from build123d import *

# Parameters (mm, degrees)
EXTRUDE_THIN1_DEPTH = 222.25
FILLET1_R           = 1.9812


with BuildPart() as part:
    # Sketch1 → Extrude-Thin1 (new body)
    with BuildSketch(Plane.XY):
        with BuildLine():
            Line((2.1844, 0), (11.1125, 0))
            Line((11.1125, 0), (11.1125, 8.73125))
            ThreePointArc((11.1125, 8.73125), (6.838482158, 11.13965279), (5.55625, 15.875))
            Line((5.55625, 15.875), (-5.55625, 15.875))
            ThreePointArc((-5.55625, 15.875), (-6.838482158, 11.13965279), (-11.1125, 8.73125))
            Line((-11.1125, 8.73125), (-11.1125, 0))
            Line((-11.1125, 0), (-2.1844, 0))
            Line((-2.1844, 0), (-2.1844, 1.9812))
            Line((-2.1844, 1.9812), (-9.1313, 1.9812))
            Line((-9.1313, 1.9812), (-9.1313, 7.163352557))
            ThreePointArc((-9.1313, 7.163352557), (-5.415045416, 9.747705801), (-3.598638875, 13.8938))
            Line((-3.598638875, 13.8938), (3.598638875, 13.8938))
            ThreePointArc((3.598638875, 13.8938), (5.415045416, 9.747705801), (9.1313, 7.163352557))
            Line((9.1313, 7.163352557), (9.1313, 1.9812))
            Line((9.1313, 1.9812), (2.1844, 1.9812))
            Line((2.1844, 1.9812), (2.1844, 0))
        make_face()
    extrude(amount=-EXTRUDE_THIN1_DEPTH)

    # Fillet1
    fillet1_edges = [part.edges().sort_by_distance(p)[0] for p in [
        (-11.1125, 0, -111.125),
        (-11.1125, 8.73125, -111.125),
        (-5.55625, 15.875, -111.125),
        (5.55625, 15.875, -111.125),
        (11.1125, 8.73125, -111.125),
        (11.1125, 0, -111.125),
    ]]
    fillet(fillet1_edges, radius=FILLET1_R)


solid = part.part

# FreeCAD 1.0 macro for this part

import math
import FreeCAD as App
import Part
import Sketcher
Q = App.Units.Quantity


def edges_at(feature, points):
    """Names of the edges that pass closest to the given points."""
    edges = feature.Shape.Edges
    near = lambda p: min(range(len(edges)), key=lambda i: edges[i].distToShape(Part.Vertex(*p))[0])
    return sorted({f"Edge{near(p) + 1}" for p in points})

doc = App.newDocument("Part")
params = doc.addObject("Spreadsheet::Sheet", "Params")
for row, (alias, value) in enumerate([
    ("sketch1_radius", "0.25 in"),
    ("sketch1_radius2", "0.328 in"),
    ("sketch1_width", "0.4375 in"),
    ("sketch1_height", "0.34375 in"),
    ("sketch1_height2", "0.078 in"),
    ("pad1_length", "8.75 in"),
    ("fillet_radius", "0.078 in"),
], start=1):
    params.set(f"A{row}", alias)
    params.set(f"B{row}", "=" + value)
    params.setAlias(f"B{row}", alias)

body = doc.addObject("PartDesign::Body", "Body")

# Sketch on XY plane
sketch1 = body.newObject("Sketcher::SketchObject", "Sketch")
sketch1.AttachmentSupport = (doc.getObject("XY_Plane"), [""])
sketch1.MapMode = "FlatFace"
sketch1.addGeometry(Part.LineSegment(App.Vector(2.1844, 0, 0), App.Vector(11.1125, 0, 0)), False)
sketch1.addGeometry(Part.LineSegment(App.Vector(11.1125, 0, 0), App.Vector(11.1125, 8.73125, 0)), False)
sketch1.addGeometry(Part.ArcOfCircle(Part.Circle(App.Vector(11.850869, 15.038176, 0), App.Vector(0, 0, 1), 6.35), math.radians(172.427342), math.radians(263.322625)), False)
sketch1.addGeometry(Part.LineSegment(App.Vector(5.55625, 15.875, 0), App.Vector(-5.55625, 15.875, 0)), False)
sketch1.addGeometry(Part.ArcOfCircle(Part.Circle(App.Vector(-11.850869, 15.038176, 0), App.Vector(0, 0, 1), 6.35), math.radians(-83.322625), math.radians(7.572658)), False)
sketch1.addGeometry(Part.LineSegment(App.Vector(-11.1125, 8.73125, 0), App.Vector(-11.1125, 0, 0)), False)
sketch1.addGeometry(Part.LineSegment(App.Vector(-11.1125, 0, 0), App.Vector(-2.1844, 0, 0)), False)
sketch1.addGeometry(Part.LineSegment(App.Vector(-2.1844, 0, 0), App.Vector(-2.1844, 1.9812, 0)), False)
sketch1.addGeometry(Part.LineSegment(App.Vector(-2.1844, 1.9812, 0), App.Vector(-9.1313, 1.9812, 0)), False)
sketch1.addGeometry(Part.LineSegment(App.Vector(-9.1313, 1.9812, 0), App.Vector(-9.1313, 7.163353, 0)), False)
sketch1.addGeometry(Part.ArcOfCircle(Part.Circle(App.Vector(-11.850869, 15.038176, 0), App.Vector(0, 0, 1), 8.3312), math.radians(-70.947656), math.radians(-7.895124)), False)
sketch1.addGeometry(Part.LineSegment(App.Vector(-3.598639, 13.8938, 0), App.Vector(3.598639, 13.8938, 0)), False)
sketch1.addGeometry(Part.ArcOfCircle(Part.Circle(App.Vector(11.850869, 15.038176, 0), App.Vector(0, 0, 1), 8.3312), math.radians(-172.104876), math.radians(-109.052344)), False)
sketch1.addGeometry(Part.LineSegment(App.Vector(9.1313, 7.163353, 0), App.Vector(9.1313, 1.9812, 0)), False)
sketch1.addGeometry(Part.LineSegment(App.Vector(9.1313, 1.9812, 0), App.Vector(2.1844, 1.9812, 0)), False)
sketch1.addGeometry(Part.LineSegment(App.Vector(2.1844, 1.9812, 0), App.Vector(2.1844, 0, 0)), False)
sketch1.addConstraint(Sketcher.Constraint("Coincident", 0, 2, 1, 1))
sketch1.addConstraint(Sketcher.Constraint("Coincident", 1, 2, 2, 2))
sketch1.addConstraint(Sketcher.Constraint("Coincident", 2, 1, 3, 1))
sketch1.addConstraint(Sketcher.Constraint("Coincident", 3, 2, 4, 2))
sketch1.addConstraint(Sketcher.Constraint("Coincident", 4, 1, 5, 1))
sketch1.addConstraint(Sketcher.Constraint("Coincident", 5, 2, 6, 1))
sketch1.addConstraint(Sketcher.Constraint("Coincident", 6, 2, 7, 1))
sketch1.addConstraint(Sketcher.Constraint("Coincident", 7, 2, 8, 1))
sketch1.addConstraint(Sketcher.Constraint("Coincident", 8, 2, 9, 1))
sketch1.addConstraint(Sketcher.Constraint("Coincident", 9, 2, 10, 1))
sketch1.addConstraint(Sketcher.Constraint("Coincident", 10, 2, 11, 1))
sketch1.addConstraint(Sketcher.Constraint("Coincident", 11, 2, 12, 1))
sketch1.addConstraint(Sketcher.Constraint("Coincident", 12, 2, 13, 1))
sketch1.addConstraint(Sketcher.Constraint("Coincident", 13, 2, 14, 1))
sketch1.addConstraint(Sketcher.Constraint("Coincident", 14, 2, 15, 1))
sketch1.addConstraint(Sketcher.Constraint("Coincident", 15, 2, 0, 1))
sketch1.addConstraint(Sketcher.Constraint("Horizontal", 0))
sketch1.addConstraint(Sketcher.Constraint("Vertical", 1))
sketch1.addConstraint(Sketcher.Constraint("Horizontal", 3))
sketch1.addConstraint(Sketcher.Constraint("Vertical", 5))
sketch1.addConstraint(Sketcher.Constraint("Horizontal", 6))
sketch1.addConstraint(Sketcher.Constraint("Vertical", 7))
sketch1.addConstraint(Sketcher.Constraint("Horizontal", 8))
sketch1.addConstraint(Sketcher.Constraint("Vertical", 9))
sketch1.addConstraint(Sketcher.Constraint("Horizontal", 11))
sketch1.addConstraint(Sketcher.Constraint("Vertical", 13))
sketch1.addConstraint(Sketcher.Constraint("Horizontal", 14))
sketch1.addConstraint(Sketcher.Constraint("Vertical", 15))
sketch1.addConstraint(Sketcher.Constraint("Coincident", 10, 3, 4, 3))
sketch1.addConstraint(Sketcher.Constraint("Coincident", 12, 3, 2, 3))
sketch1.addConstraint(Sketcher.Constraint("Equal", 2, 4))
sketch1.addConstraint(Sketcher.Constraint("Equal", 10, 12))
sketch1.addConstraint(Sketcher.Constraint("Symmetric", 0, 2, 5, 2, -1, 1))
sketch1.addConstraint(Sketcher.Constraint("Symmetric", 2, 3, 4, 3, -2))
sketch1.addConstraint(Sketcher.Constraint("Symmetric", 8, 2, 13, 2, -2))
sketch1.addConstraint(Sketcher.Constraint("Symmetric", 6, 2, 15, 2, -2))
sketch1.addConstraint(Sketcher.Constraint("Radius", 2, Q("0.25 in")))
sketch1.addConstraint(Sketcher.Constraint("Radius", 10, Q("0.328 in")))
sketch1.addConstraint(Sketcher.Constraint("DistanceX", 3, 2, 3, 1, Q("0.4375 in")))
sketch1.addConstraint(Sketcher.Constraint("DistanceY", 1, 1, 1, 2, Q("0.34375 in")))
sketch1.addConstraint(Sketcher.Constraint("DistanceY", 7, 1, 7, 2, Q("0.078 in")))
sketch1.addConstraint(Sketcher.Constraint("DistanceX", 0, 1, 0, 2, Q("0.3515 in")))
sketch1.addConstraint(Sketcher.Constraint("DistanceX", 8, 2, 8, 1, Q("0.2735 in")))
sketch1.addConstraint(Sketcher.Constraint("DistanceX", -1, 1, 0, 2, Q("0.4375 in")))
sketch1.addConstraint(Sketcher.Constraint("DistanceY", -1, 1, 2, 1, Q("0.625 in")))
sketch1.addConstraint(Sketcher.Constraint("DistanceY", -1, 1, 10, 2, Q("0.547 in")))
sketch1.setExpression("Constraints[36]", "Params.sketch1_radius")
sketch1.setExpression("Constraints[37]", "Params.sketch1_radius2")
sketch1.setExpression("Constraints[38]", "Params.sketch1_width")
sketch1.setExpression("Constraints[39]", "Params.sketch1_height")
sketch1.setExpression("Constraints[40]", "Params.sketch1_height2")
pad1 = body.newObject("PartDesign::Pad", "Pad")
pad1.Profile = sketch1
pad1.setExpression("Length", "Params.pad1_length")
pad1.Reversed = True
doc.recompute()

fillet = body.newObject("PartDesign::Fillet", "Fillet")
fillet.Base = (pad1, edges_at(pad1, [
    (-11.113, 0, -111.125),
    (-11.113, 8.731, -111.125),
    (-5.556, 15.875, -111.125),
    (5.556, 15.875, -111.125),
    (11.113, 8.731, -111.125),
    (11.113, 0, -111.125),
]))
fillet.setExpression("Radius", "Params.fillet_radius")

doc.recompute()
